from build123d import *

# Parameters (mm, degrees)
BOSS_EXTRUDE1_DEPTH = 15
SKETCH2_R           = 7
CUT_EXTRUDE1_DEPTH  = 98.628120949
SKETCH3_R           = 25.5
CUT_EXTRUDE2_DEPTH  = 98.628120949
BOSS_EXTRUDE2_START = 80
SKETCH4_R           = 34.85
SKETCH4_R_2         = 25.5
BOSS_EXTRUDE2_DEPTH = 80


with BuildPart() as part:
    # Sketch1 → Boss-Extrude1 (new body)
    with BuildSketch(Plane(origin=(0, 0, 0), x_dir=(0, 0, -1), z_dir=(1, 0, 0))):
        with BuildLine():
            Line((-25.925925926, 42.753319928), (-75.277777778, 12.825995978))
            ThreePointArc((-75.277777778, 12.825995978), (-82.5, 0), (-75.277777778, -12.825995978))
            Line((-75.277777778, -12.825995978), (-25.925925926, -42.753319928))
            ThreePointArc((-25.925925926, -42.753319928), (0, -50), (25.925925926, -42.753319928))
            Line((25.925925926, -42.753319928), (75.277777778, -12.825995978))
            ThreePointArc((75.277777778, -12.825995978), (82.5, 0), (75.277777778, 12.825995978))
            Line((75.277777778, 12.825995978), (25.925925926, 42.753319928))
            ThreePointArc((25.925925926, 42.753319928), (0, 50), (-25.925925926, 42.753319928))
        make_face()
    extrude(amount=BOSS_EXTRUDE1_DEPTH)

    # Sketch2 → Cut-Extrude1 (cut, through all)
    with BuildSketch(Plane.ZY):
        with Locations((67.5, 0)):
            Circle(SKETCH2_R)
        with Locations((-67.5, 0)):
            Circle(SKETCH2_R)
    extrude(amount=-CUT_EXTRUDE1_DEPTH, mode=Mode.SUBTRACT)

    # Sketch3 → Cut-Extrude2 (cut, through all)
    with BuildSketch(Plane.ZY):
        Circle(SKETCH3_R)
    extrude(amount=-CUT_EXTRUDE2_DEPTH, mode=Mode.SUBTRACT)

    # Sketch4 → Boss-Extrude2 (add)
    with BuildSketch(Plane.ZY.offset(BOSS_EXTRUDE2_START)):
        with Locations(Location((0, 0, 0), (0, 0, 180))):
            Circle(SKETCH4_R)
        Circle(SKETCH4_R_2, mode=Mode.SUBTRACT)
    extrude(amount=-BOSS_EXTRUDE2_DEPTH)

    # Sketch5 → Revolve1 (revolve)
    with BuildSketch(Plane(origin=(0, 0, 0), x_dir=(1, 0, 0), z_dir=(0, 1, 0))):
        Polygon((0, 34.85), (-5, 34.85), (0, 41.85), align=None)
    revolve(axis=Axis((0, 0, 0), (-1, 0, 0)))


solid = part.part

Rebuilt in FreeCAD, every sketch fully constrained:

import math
import FreeCAD as App
import Part
import Sketcher
Q = App.Units.Quantity

doc = App.newDocument("Part")
body = doc.addObject("PartDesign::Body", "Body")

sketch1 = body.newObject("Sketcher::SketchObject", "Sketch")
sketch1.AttachmentSupport = (doc.getObject("YZ_Plane"), [""])
sketch1.MapMode = "FlatFace"
sketch1.addGeometry(Part.LineSegment(App.Vector(43, 26, 0), App.Vector(13, 75, 0)), False)
sketch1.addGeometry(Part.ArcOfCircle(Part.Circle(App.Vector(0, 68, 0), App.Vector(0, 0, 1), 15), math.radians(31), math.radians(149)), False)
sketch1.addGeometry(Part.LineSegment(App.Vector(-13, 75, 0), App.Vector(-43, 26, 0)), False)
sketch1.addGeometry(Part.ArcOfCircle(Part.Circle(App.Vector(0, 0, 0), App.Vector(0, 0, 1), 50), math.radians(149), math.radians(211)), False)
sketch1.addGeometry(Part.LineSegment(App.Vector(-43, -26, 0), App.Vector(-13, -75, 0)), False)
sketch1.addGeometry(Part.ArcOfCircle(Part.Circle(App.Vector(0, -68, 0), App.Vector(0, 0, 1), 15), math.radians(-149), math.radians(-31)), False)
sketch1.addGeometry(Part.LineSegment(App.Vector(13, -75, 0), App.Vector(43, -26, 0)), False)
sketch1.addGeometry(Part.ArcOfCircle(Part.Circle(App.Vector(0, 0, 0), App.Vector(0, 0, 1), 50), math.radians(-31), math.radians(31)), False)
sketch1.addConstraint(Sketcher.Constraint("Tangent", 0, 2, 1, 1))
sketch1.addConstraint(Sketcher.Constraint("Tangent", 1, 2, 2, 1))
sketch1.addConstraint(Sketcher.Constraint("Tangent", 2, 2, 3, 1))
sketch1.addConstraint(Sketcher.Constraint("Tangent", 3, 2, 4, 1))
sketch1.addConstraint(Sketcher.Constraint("Tangent", 4, 2, 5, 1))
sketch1.addConstraint(Sketcher.Constraint("Tangent", 5, 2, 6, 1))
sketch1.addConstraint(Sketcher.Constraint("Tangent", 6, 2, 7, 1))
sketch1.addConstraint(Sketcher.Constraint("Tangent", 7, 2, 0, 1))
sketch1.addConstraint(Sketcher.Constraint("Coincident", 3, 3, -1, 1))
sketch1.addConstraint(Sketcher.Constraint("Coincident", 7, 3, -1, 1))
sketch1.addConstraint(Sketcher.Constraint("Equal", 1, 5))
sketch1.addConstraint(Sketcher.Constraint("Equal", 3, 7))
sketch1.addConstraint(Sketcher.Constraint("Symmetric", 1, 3, 5, 3, -1, 1))
sketch1.addConstraint(Sketcher.Constraint("PointOnObject", 1, 3, -2))
sketch1.addConstraint(Sketcher.Constraint("Radius", 1, Q("15 mm")))
sketch1.addConstraint(Sketcher.Constraint("Radius", 3, Q("50 mm")))
sketch1.addConstraint(Sketcher.Constraint("DistanceY", 5, 3, 1, 3, Q("135 mm")))
pad1 = body.newObject("PartDesign::Pad", "Pad")
pad1.Profile = sketch1
pad1.Length = 15

sketch2 = body.newObject("Sketcher::SketchObject", "Sketch001")
sketch2.AttachmentSupport = (doc.getObject("YZ_Plane"), [""])
sketch2.MapMode = "FlatFace"
sketch2.addGeometry(Part.Circle(App.Vector(0, 68, 0), App.Vector(0, 0, 1), 7), False)
sketch2.addGeometry(Part.Circle(App.Vector(0, -68, 0), App.Vector(0, 0, 1), 7), False)
sketch2.addConstraint(Sketcher.Constraint("Equal", 0, 1))
sketch2.addConstraint(Sketcher.Constraint("Symmetric", 0, 3, 1, 3, -1, 1))
sketch2.addConstraint(Sketcher.Constraint("PointOnObject", 0, 3, -2))
sketch2.addConstraint(Sketcher.Constraint("Diameter", 0, Q("14 mm")))
sketch2.addConstraint(Sketcher.Constraint("DistanceY", 1, 3, 0, 3, Q("135 mm")))
pocket1 = body.newObject("PartDesign::Pocket", "Pocket")
pocket1.Profile = sketch2
pocket1.Type = "ThroughAll"
pocket1.Reversed = True

sketch3 = body.newObject("Sketcher::SketchObject", "Sketch002")
sketch3.AttachmentSupport = (doc.getObject("YZ_Plane"), [""])
sketch3.MapMode = "FlatFace"
sketch3.addGeometry(Part.Circle(App.Vector(0, 0, 0), App.Vector(0, 0, 1), 26), False)
sketch3.addConstraint(Sketcher.Constraint("Coincident", 0, 3, -1, 1))
sketch3.addConstraint(Sketcher.Constraint("Diameter", 0, Q("51 mm")))
pocket2 = body.newObject("PartDesign::Pocket", "Pocket001")
pocket2.Profile = sketch3
pocket2.Type = "ThroughAll"
pocket2.Reversed = True

sketch4 = body.newObject("Sketcher::SketchObject", "Sketch003")
sketch4.AttachmentSupport = (doc.getObject("YZ_Plane"), [""])
sketch4.MapMode = "FlatFace"
sketch4.AttachmentOffset = App.Placement(App.Vector(0, 0, -80), App.Rotation())
sketch4.addGeometry(Part.Circle(App.Vector(0, 0, 0), App.Vector(0, 0, 1), 35), False)
sketch4.addGeometry(Part.Circle(App.Vector(0, 0, 0), App.Vector(0, 0, 1), 26), False)
sketch4.addConstraint(Sketcher.Constraint("Coincident", 0, 3, -1, 1))
sketch4.addConstraint(Sketcher.Constraint("Coincident", 1, 3, -1, 1))
sketch4.addConstraint(Sketcher.Constraint("Diameter", 1, Q("51 mm")))
sketch4.addConstraint(Sketcher.Constraint("Diameter", 0, Q("69.7 mm")))
pad2 = body.newObject("PartDesign::Pad", "Pad001")
pad2.Profile = sketch4
pad2.Length = 80

sketch5 = body.newObject("Sketcher::SketchObject", "Sketch004")
sketch5.AttachmentSupport = (doc.getObject("XZ_Plane"), [""])
sketch5.MapMode = "FlatFace"
sketch5.addGeometry(Part.LineSegment(App.Vector(-5, -35, 0), App.Vector(0, -35, 0)), False)
sketch5.addGeometry(Part.LineSegment(App.Vector(0, -35, 0), App.Vector(0, -42, 0)), False)
sketch5.addGeometry(Part.LineSegment(App.Vector(0, -42, 0), App.Vector(-5, -35, 0)), False)
sketch5.addConstraint(Sketcher.Constraint("Coincident", 0, 2, 1, 1))
sketch5.addConstraint(Sketcher.Constraint("Coincident", 1, 2, 2, 1))
sketch5.addConstraint(Sketcher.Constraint("Coincident", 2, 2, 0, 1))
sketch5.addConstraint(Sketcher.Constraint("Horizontal", 0))
sketch5.addConstraint(Sketcher.Constraint("Vertical", 1))
sketch5.addConstraint(Sketcher.Constraint("PointOnObject", 0, 2, -2))
sketch5.addConstraint(Sketcher.Constraint("DistanceX", 0, 1, 0, 2, Q("5 mm")))
sketch5.addConstraint(Sketcher.Constraint("DistanceY", 1, 2, 1, 1, Q("7 mm")))
sketch5.addConstraint(Sketcher.Constraint("DistanceY", 0, 2, -1, 1, Q("34.85 mm")))
revolution = body.newObject("PartDesign::Revolution", "Revolution")
revolution.Profile = sketch5
revolution.ReferenceAxis = (sketch5, ["H_Axis"])
revolution.Angle = 360

doc.recompute()
